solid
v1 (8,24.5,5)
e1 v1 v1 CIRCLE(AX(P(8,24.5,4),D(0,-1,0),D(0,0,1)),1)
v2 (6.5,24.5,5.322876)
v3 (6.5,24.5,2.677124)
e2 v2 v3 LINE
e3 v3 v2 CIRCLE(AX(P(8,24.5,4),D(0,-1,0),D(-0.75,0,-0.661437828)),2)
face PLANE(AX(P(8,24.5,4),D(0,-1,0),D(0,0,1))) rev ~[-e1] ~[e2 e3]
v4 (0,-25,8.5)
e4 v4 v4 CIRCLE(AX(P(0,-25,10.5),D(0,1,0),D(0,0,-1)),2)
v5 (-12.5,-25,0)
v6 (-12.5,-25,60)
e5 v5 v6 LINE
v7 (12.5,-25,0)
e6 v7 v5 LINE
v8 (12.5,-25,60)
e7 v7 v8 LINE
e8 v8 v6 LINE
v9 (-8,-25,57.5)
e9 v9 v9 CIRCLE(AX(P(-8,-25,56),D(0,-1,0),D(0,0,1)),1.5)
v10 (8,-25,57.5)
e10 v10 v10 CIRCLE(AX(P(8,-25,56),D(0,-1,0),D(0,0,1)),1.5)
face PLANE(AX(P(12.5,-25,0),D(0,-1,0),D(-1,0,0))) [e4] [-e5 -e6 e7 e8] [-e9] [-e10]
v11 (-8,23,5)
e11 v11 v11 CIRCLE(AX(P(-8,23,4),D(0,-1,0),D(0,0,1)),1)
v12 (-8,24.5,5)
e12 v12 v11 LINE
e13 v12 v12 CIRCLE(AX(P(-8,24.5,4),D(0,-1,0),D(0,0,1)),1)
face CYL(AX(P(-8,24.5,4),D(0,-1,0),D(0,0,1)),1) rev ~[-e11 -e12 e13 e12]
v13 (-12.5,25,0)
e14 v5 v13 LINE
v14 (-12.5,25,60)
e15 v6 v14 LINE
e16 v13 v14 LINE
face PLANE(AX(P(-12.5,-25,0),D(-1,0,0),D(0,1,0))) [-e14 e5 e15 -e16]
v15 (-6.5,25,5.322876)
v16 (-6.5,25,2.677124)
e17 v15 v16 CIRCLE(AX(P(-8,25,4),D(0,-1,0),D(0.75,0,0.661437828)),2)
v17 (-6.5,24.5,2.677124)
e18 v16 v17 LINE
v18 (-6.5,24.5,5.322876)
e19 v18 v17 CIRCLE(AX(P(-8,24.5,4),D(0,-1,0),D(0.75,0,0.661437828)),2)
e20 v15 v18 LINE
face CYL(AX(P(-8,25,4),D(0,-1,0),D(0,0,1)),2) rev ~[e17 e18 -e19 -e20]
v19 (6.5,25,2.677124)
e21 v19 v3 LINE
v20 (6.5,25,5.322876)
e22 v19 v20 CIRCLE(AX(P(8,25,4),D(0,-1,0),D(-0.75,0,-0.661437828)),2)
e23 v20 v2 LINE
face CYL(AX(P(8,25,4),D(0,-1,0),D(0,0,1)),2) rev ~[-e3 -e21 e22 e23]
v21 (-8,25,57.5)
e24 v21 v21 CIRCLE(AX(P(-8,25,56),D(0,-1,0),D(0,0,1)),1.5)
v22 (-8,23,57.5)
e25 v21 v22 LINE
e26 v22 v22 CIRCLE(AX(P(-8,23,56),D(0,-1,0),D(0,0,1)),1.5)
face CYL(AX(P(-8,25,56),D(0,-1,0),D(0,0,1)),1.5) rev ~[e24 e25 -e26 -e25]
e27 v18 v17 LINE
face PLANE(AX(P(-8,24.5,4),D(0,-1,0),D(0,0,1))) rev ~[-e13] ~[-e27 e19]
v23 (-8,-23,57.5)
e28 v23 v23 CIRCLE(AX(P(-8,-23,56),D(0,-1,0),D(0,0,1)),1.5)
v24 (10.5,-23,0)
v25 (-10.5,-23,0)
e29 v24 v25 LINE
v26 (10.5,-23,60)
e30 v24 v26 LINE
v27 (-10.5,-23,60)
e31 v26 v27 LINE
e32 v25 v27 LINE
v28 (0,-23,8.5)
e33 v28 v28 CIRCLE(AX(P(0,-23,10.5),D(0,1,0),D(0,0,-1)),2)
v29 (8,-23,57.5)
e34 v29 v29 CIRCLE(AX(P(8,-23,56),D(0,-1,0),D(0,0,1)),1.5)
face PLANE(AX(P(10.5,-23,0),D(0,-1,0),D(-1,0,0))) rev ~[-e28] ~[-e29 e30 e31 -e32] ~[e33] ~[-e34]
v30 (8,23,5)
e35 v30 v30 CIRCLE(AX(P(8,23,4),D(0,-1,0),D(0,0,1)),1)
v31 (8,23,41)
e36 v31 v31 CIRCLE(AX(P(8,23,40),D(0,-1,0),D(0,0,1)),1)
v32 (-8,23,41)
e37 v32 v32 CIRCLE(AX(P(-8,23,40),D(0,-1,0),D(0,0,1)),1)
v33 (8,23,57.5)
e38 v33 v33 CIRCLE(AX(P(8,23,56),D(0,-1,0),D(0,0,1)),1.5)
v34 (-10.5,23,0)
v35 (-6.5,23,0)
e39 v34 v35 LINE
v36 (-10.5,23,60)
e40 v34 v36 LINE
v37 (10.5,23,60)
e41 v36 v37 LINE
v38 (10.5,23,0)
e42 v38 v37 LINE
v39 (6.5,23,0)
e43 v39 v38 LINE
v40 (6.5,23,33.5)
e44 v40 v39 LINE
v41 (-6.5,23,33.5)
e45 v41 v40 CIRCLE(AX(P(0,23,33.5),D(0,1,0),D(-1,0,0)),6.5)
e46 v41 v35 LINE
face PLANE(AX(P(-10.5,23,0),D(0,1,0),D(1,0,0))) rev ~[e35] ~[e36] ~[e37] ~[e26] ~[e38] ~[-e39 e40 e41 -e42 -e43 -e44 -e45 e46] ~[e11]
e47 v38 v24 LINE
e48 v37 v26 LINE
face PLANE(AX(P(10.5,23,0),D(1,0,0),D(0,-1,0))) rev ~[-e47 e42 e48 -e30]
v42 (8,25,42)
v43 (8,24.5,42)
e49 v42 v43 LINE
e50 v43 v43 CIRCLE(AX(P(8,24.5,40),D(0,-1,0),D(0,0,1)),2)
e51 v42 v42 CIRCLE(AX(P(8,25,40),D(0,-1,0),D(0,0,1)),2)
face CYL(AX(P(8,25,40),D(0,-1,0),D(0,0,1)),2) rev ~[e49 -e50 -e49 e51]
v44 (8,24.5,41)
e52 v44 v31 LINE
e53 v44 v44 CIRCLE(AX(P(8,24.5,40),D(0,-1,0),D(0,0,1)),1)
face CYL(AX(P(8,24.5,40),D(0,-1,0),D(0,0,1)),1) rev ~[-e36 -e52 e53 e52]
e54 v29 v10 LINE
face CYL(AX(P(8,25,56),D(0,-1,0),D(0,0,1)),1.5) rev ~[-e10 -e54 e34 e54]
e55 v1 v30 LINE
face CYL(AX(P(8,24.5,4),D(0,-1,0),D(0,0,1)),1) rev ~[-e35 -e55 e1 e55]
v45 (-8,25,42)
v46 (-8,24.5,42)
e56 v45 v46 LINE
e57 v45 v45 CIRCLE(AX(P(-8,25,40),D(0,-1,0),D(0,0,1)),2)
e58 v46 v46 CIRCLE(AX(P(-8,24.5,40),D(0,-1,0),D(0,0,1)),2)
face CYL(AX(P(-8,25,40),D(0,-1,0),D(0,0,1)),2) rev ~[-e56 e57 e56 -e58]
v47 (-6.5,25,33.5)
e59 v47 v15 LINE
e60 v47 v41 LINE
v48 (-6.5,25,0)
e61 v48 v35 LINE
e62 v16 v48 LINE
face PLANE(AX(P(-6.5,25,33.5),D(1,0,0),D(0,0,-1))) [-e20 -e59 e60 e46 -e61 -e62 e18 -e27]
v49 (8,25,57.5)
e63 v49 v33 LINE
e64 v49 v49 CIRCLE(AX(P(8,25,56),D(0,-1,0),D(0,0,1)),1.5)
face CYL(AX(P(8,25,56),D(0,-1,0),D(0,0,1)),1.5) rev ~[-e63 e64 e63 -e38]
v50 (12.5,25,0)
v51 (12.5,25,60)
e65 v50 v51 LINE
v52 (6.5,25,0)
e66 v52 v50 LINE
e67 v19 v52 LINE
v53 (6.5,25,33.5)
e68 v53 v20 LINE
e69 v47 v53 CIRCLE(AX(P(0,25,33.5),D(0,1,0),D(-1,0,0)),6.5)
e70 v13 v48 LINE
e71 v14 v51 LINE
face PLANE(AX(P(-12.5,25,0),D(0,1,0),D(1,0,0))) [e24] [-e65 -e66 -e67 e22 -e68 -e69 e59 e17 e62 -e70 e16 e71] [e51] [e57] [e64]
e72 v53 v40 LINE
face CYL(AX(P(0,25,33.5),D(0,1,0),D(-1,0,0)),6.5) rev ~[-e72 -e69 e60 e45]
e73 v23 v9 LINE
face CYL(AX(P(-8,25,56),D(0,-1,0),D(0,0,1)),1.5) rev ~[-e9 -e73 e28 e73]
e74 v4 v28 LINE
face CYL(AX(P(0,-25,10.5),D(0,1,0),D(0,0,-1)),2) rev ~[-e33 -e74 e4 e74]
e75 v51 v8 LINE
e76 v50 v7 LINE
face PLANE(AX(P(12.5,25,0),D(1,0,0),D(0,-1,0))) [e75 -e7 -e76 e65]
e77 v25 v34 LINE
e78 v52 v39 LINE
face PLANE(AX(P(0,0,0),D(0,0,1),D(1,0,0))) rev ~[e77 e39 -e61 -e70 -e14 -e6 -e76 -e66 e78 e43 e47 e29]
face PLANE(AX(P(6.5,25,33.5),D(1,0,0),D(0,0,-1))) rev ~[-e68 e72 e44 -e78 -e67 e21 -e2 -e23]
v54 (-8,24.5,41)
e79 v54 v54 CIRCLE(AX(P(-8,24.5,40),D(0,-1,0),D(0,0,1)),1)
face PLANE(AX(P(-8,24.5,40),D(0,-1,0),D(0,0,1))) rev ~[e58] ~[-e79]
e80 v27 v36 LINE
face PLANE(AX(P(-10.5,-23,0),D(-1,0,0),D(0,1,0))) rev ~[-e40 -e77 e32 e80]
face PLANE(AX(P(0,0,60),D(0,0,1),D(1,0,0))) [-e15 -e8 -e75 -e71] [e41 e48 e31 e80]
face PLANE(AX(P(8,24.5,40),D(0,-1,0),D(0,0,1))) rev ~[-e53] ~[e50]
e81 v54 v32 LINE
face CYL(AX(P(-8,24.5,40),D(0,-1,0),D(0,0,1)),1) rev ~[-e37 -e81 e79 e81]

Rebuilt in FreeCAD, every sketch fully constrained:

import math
import FreeCAD as App
import Part
import Sketcher

V = App.Vector

doc = App.newDocument("Part")
body = doc.addObject("PartDesign::Body", "Body")

sketch1 = doc.addObject("Sketcher::SketchObject", "Sketch")
body.addObject(sketch1)
sketch1.AttachmentSupport = (doc.XY_Plane, [""])
sketch1.MapMode = "FlatFace"
sketch1.addGeometry([
    Part.LineSegment(V(12, 25, 0), V(-12, 25, 0)),
    Part.LineSegment(V(-12, 25, 0), V(-12, -25, 0)),
    Part.LineSegment(V(-12, -25, 0), V(12, -25, 0)),
    Part.LineSegment(V(12, -25, 0), V(12, 25, 0)),
    Part.LineSegment(V(-10, -23, 0), V(-10, 23, 0)),
    Part.LineSegment(V(-10, 23, 0), V(10, 23, 0)),
    Part.LineSegment(V(10, 23, 0), V(10, -23, 0)),
    Part.LineSegment(V(10, -23, 0), V(-10, -23, 0)),
], False)
sketch1.addConstraint([
    Sketcher.Constraint("Coincident", 0, 2, 1, 1),
    Sketcher.Constraint("Coincident", 1, 2, 2, 1),
    Sketcher.Constraint("Coincident", 2, 2, 3, 1),
    Sketcher.Constraint("Coincident", 3, 2, 0, 1),
    Sketcher.Constraint("Coincident", 4, 2, 5, 1),
    Sketcher.Constraint("Coincident", 5, 2, 6, 1),
    Sketcher.Constraint("Coincident", 6, 2, 7, 1),
    Sketcher.Constraint("Coincident", 7, 2, 4, 1),
    Sketcher.Constraint("Horizontal", 0),
    Sketcher.Constraint("Vertical", 1),
    Sketcher.Constraint("Horizontal", 2),
    Sketcher.Constraint("Vertical", 3),
    Sketcher.Constraint("Vertical", 4),
    Sketcher.Constraint("Horizontal", 5),
    Sketcher.Constraint("Vertical", 6),
    Sketcher.Constraint("Horizontal", 7),
    Sketcher.Constraint("Symmetric", 0, 2, 2, 2, -1, 1),
    Sketcher.Constraint("Symmetric", 4, 2, 6, 2, -1, 1),
    Sketcher.Constraint("DistanceX", 0, 2, 0, 1, 25.0),
    Sketcher.Constraint("DistanceX", 5, 1, 5, 2, 21.0),
    Sketcher.Constraint("DistanceY", 1, 2, 1, 1, 50.0),
    Sketcher.Constraint("DistanceY", 4, 1, 4, 2, 46.0),
])
pad1 = doc.addObject("PartDesign::Pad", "Pad")
body.addObject(pad1)
pad1.Profile = sketch1
pad1.Length = 60

sketch2 = doc.addObject("Sketcher::SketchObject", "Sketch001")
body.addObject(sketch2)
sketch2.AttachmentSupport = (doc.XZ_Plane, [""])
sketch2.MapMode = "FlatFace"
sketch2.AttachmentOffset = App.Placement(V(0, 0, -25), App.Rotation())
sketch2.addGeometry([
    Part.LineSegment(V(6, 0, 0), V(-6, 0, 0)),
    Part.LineSegment(V(-6, 0, 0), V(-6, 34, 0)),
    Part.ArcOfCircle(Part.Circle(V(0, 34, 0), V(0, 0, 1), 6), math.radians(0), math.radians(180)),
    Part.LineSegment(V(6, 34, 0), V(6, 0, 0)),
], False)
sketch2.addConstraint([
    Sketcher.Constraint("Coincident", 0, 2, 1, 1),
    Sketcher.Constraint("Tangent", 1, 2, 2, 2),
    Sketcher.Constraint("Tangent", 2, 1, 3, 1),
    Sketcher.Constraint("Coincident", 3, 2, 0, 1),
    Sketcher.Constraint("Horizontal", 0),
    Sketcher.Constraint("Vertical", 1),
    Sketcher.Constraint("Vertical", 3),
    Sketcher.Constraint("Symmetric", 0, 2, 3, 2, -1, 1),
    Sketcher.Constraint("Radius", 2, 6.5),
    Sketcher.Constraint("DistanceY", 1, 1, 1, 2, 33.5),
])
pocket1 = doc.addObject("PartDesign::Pocket", "Pocket")
body.addObject(pocket1)
pocket1.Profile = sketch2
pocket1.Length = 2
pocket1.Reversed = True

sketch3 = doc.addObject("Sketcher::SketchObject", "Sketch002")
body.addObject(sketch3)
sketch3.AttachmentSupport = (doc.XZ_Plane, [""])
sketch3.MapMode = "FlatFace"
sketch3.AttachmentOffset = App.Placement(V(0, 0, -25), App.Rotation())
sketch3.addGeometry([
    Part.Circle(V(-8, 4, 0), V(0, 0, 1), 1),
    Part.Circle(V(8, 4, 0), V(0, 0, 1), 1),
    Part.Circle(V(8, 40, 0), V(0, 0, 1), 1),
    Part.Circle(V(-8, 40, 0), V(0, 0, 1), 1),
], False)
sketch3.addConstraint([
    Sketcher.Constraint("Equal", 0, 1),
    Sketcher.Constraint("Equal", 1, 2),
    Sketcher.Constraint("Equal", 2, 3),
    Sketcher.Constraint("Symmetric", 0, 3, 1, 3, -2),
    Sketcher.Constraint("Symmetric", 2, 3, 3, 3, -2),
    Sketcher.Constraint("Vertical", 1, 3, 2, 3),
    Sketcher.Constraint("Diameter", 0, 2.0),
    Sketcher.Constraint("DistanceX", 0, 3, -1, 1, 8.0),
    Sketcher.Constraint("DistanceY", -1, 1, 0, 3, 4.0),
    Sketcher.Constraint("DistanceY", -1, 1, 2, 3, 40.0),
])
doc.recompute()
hole = doc.addObject("PartDesign::Hole", "Hole")
body.addObject(hole)
hole.Profile = sketch3
hole.ThreadType = "None"
hole.Diameter = 2
hole.DepthType = "Dimension"
hole.Depth = 2
hole.DrillPoint = "Angled"
hole.DrillPointAngle = 118
hole.HoleCutType = "Counterbore"
hole.HoleCutDiameter = 4
hole.HoleCutDepth = 0.5
hole.Reversed = True

sketch4 = doc.addObject("Sketcher::SketchObject", "Sketch003")
body.addObject(sketch4)
sketch4.AttachmentSupport = (doc.XZ_Plane, [""])
sketch4.MapMode = "FlatFace"
sketch4.AttachmentOffset = App.Placement(V(0, 0, 25), App.Rotation())
sketch4.addGeometry(Part.Circle(V(0, 10.5, 0), V(0, 0, 1), 2), False)
sketch4.addConstraint([
    Sketcher.Constraint("PointOnObject", 0, 3, -2),
    Sketcher.Constraint("Diameter", 0, 4.0),
    Sketcher.Constraint("DistanceY", -1, 1, 0, 3, 10.5),
])
doc.recompute()
hole2 = doc.addObject("PartDesign::Hole", "Hole001")
body.addObject(hole2)
hole2.Profile = sketch4
hole2.ThreadType = "None"
hole2.Diameter = 4
hole2.DepthType = "ThroughAll"

sketch5 = doc.addObject("Sketcher::SketchObject", "Sketch004")
body.addObject(sketch5)
sketch5.AttachmentSupport = (doc.XZ_Plane, [""])
sketch5.MapMode = "FlatFace"
sketch5.AttachmentOffset = App.Placement(V(0, 0, -25), App.Rotation())
sketch5.addGeometry([
    Part.Circle(V(-8, 56, 0), V(0, 0, 1), 1.5),
    Part.Circle(V(8, 56, 0), V(0, 0, 1), 1.5),
], False)
sketch5.addConstraint([
    Sketcher.Constraint("Equal", 0, 1),
    Sketcher.Constraint("Symmetric", 0, 3, 1, 3, -2),
    Sketcher.Constraint("Diameter", 0, 3.0),
    Sketcher.Constraint("DistanceX", 0, 3, -1, 1, 8.0),
    Sketcher.Constraint("DistanceY", -1, 1, 0, 3, 56.0),
])
doc.recompute()
hole3 = doc.addObject("PartDesign::Hole", "Hole002")
body.addObject(hole3)
hole3.Profile = sketch5
hole3.ThreadType = "None"
hole3.Diameter = 3
hole3.DepthType = "ThroughAll"
hole3.Reversed = True

doc.recompute()
